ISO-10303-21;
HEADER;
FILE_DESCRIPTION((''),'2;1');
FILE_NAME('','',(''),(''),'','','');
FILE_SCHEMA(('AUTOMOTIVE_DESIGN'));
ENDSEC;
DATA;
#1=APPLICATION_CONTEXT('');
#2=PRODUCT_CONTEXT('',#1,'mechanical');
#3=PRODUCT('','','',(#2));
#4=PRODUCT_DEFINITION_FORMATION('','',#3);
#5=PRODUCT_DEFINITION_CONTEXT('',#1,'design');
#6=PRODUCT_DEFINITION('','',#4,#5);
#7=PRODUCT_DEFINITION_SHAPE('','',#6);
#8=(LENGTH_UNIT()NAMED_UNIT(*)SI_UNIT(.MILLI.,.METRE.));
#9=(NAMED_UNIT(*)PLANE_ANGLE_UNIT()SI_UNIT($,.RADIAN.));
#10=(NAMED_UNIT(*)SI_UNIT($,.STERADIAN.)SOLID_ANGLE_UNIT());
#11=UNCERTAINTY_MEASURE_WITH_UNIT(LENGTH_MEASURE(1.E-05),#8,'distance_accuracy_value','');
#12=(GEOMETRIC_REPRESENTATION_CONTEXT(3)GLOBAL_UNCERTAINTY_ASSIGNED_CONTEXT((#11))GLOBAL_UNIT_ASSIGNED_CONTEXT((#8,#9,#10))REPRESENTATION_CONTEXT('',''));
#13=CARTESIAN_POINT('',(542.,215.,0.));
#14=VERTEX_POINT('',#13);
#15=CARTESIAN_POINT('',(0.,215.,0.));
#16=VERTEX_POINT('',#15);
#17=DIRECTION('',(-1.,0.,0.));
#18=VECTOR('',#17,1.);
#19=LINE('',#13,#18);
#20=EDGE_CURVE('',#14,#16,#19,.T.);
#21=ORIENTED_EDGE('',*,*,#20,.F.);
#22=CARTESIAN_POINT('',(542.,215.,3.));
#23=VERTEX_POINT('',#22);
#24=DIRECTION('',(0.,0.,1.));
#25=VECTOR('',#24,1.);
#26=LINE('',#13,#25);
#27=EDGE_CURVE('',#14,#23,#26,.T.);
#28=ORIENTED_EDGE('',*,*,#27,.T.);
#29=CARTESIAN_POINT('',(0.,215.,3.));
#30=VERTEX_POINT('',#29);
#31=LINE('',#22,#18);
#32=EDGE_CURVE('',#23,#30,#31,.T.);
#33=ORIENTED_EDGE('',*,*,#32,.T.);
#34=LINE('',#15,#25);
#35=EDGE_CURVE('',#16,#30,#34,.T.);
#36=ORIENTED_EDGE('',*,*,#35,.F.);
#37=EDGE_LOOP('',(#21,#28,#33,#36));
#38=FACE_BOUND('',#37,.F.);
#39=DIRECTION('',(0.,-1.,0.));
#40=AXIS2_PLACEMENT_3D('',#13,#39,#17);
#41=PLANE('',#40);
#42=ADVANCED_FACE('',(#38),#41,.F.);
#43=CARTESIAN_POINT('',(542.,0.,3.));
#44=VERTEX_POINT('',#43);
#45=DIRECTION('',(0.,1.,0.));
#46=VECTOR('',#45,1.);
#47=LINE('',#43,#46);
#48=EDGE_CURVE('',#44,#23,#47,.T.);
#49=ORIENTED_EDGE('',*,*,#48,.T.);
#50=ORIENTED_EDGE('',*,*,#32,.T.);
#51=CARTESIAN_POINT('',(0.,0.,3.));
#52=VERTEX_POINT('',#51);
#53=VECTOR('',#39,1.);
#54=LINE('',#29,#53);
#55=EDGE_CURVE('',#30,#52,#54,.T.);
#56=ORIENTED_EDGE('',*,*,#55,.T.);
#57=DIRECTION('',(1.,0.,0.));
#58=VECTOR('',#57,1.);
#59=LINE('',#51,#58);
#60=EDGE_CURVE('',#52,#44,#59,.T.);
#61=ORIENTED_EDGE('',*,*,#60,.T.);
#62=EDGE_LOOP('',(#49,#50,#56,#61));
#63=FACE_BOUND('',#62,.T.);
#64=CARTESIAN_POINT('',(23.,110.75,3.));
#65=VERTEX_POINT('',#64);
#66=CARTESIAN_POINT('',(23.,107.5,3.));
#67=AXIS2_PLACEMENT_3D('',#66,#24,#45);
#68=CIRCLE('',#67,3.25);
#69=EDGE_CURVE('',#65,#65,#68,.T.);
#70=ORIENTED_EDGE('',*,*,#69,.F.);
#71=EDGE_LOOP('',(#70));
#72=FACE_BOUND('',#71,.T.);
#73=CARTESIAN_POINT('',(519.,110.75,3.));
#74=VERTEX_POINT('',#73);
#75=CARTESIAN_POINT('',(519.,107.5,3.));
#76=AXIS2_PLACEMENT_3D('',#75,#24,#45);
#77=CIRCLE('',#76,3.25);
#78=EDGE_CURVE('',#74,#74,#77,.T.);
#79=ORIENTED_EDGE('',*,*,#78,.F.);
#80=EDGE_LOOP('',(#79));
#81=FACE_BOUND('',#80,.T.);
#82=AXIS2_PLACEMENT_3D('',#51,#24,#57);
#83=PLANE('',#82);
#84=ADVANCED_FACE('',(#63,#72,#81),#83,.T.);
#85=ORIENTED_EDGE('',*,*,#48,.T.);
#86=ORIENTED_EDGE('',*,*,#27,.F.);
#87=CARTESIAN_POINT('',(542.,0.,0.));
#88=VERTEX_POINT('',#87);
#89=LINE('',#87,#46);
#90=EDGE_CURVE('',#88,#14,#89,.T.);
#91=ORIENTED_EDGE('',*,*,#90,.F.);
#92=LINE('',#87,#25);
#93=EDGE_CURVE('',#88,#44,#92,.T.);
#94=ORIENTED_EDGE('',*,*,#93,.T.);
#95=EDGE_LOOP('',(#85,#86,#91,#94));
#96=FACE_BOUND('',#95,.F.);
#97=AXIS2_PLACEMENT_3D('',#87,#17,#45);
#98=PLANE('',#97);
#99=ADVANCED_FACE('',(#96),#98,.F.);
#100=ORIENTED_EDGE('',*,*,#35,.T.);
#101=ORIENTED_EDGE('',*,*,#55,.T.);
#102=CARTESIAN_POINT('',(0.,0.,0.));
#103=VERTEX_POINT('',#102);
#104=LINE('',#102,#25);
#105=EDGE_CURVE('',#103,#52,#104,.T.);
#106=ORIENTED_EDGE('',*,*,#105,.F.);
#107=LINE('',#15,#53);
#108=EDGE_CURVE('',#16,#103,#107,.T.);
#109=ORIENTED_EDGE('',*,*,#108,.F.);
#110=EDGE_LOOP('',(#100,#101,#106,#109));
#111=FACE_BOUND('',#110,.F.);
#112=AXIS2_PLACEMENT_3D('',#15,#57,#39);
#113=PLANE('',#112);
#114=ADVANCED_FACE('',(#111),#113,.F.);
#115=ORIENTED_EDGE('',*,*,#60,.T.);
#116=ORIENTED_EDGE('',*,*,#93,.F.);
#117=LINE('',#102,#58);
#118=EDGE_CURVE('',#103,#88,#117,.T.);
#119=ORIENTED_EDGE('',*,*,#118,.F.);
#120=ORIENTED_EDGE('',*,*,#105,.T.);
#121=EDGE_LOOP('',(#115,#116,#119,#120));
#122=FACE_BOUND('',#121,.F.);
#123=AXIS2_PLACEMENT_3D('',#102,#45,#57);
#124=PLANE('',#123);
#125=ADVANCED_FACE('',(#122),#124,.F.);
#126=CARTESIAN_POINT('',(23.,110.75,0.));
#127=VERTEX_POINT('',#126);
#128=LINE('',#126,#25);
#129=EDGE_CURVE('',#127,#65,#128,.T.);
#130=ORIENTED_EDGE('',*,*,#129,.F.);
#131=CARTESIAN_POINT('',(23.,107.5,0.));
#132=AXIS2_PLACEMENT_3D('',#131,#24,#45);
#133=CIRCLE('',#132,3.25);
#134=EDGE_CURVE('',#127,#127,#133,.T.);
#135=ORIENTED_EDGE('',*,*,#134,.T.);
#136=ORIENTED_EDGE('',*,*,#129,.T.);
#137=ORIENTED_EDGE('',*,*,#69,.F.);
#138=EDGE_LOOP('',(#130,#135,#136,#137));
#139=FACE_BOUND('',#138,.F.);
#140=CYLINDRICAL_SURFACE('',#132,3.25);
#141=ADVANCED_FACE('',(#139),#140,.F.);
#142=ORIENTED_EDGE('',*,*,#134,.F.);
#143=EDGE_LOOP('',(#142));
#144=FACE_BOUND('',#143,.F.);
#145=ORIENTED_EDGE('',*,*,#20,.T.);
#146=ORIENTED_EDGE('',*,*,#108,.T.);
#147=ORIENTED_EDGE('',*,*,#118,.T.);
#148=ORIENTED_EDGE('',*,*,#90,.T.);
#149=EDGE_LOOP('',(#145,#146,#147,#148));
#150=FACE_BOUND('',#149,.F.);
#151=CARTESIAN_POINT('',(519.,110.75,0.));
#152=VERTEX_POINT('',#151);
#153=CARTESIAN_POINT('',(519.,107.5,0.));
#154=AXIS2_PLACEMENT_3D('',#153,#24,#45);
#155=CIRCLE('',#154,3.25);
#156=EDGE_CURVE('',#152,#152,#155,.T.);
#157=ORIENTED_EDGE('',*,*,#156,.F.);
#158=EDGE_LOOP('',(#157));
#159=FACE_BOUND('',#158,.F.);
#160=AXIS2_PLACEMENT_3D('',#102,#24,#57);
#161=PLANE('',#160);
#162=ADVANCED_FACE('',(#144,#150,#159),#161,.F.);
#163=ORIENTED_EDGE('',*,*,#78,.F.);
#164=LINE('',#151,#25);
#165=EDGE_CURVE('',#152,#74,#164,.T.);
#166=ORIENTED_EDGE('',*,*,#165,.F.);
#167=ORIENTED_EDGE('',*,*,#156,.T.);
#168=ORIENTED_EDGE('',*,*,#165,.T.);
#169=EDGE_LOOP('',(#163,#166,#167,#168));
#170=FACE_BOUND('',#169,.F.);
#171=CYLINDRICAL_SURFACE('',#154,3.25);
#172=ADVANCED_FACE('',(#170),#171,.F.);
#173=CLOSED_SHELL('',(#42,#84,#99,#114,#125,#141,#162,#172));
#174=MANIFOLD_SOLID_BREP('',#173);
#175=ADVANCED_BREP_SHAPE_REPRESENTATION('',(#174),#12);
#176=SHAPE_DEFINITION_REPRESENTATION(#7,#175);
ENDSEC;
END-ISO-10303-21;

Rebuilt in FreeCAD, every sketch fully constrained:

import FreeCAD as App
import Part
import Sketcher
Q = App.Units.Quantity


def add_polygon(sketch, points):
    """Adds a closed chain of lines whose ends are joined by coincident constraints."""
    first, n = sketch.GeometryCount, len(points)
    for a, b in zip(points, points[1:] + points[:1]):
        sketch.addGeometry(Part.LineSegment(App.Vector(*a, 0), App.Vector(*b, 0)), False)
    for i in range(n):
        sketch.addConstraint(Sketcher.Constraint("Coincident", first + i, 2, first + (i + 1) % n, 1))

doc = App.newDocument("Part")
body = doc.addObject("PartDesign::Body", "Body")

sketch1 = body.newObject("Sketcher::SketchObject", "Sketch")
sketch1.AttachmentSupport = (doc.getObject("XY_Plane"), [""])
sketch1.MapMode = "FlatFace"
add_polygon(sketch1, [(0, 215), (0, 0), (542, 0), (542, 215)])
sketch1.addConstraint(Sketcher.Constraint("Vertical", 0))
sketch1.addConstraint(Sketcher.Constraint("Horizontal", 1))
sketch1.addConstraint(Sketcher.Constraint("Vertical", 2))
sketch1.addConstraint(Sketcher.Constraint("Horizontal", 3))
sketch1.addConstraint(Sketcher.Constraint("Coincident", 0, 2, -1, 1))
sketch1.addConstraint(Sketcher.Constraint("DistanceX", 1, 1, 1, 2, Q("542 mm")))
sketch1.addConstraint(Sketcher.Constraint("DistanceY", 0, 2, 0, 1, Q("215 mm")))
pad1 = body.newObject("PartDesign::Pad", "Pad")
pad1.Profile = sketch1
pad1.Length = 3

sketch2 = body.newObject("Sketcher::SketchObject", "Sketch001")
sketch2.AttachmentSupport = (doc.getObject("XY_Plane"), [""])
sketch2.MapMode = "FlatFace"
sketch2.addGeometry(Part.Circle(App.Vector(23, 107.5, 0), App.Vector(0, 0, 1), 3.2), False)
sketch2.addGeometry(Part.Circle(App.Vector(519, 107.5, 0), App.Vector(0, 0, 1), 3.2), False)
sketch2.addConstraint(Sketcher.Constraint("Equal", 0, 1))
sketch2.addConstraint(Sketcher.Constraint("Horizontal", 0, 3, 1, 3))
sketch2.addConstraint(Sketcher.Constraint("Diameter", 0, Q("6.5 mm")))
sketch2.addConstraint(Sketcher.Constraint("DistanceX", -1, 1, 0, 3, Q("23 mm")))
sketch2.addConstraint(Sketcher.Constraint("DistanceX", -1, 1, 1, 3, Q("519 mm")))
sketch2.addConstraint(Sketcher.Constraint("DistanceY", -1, 1, 0, 3, Q("107.5 mm")))
doc.recompute()
hole = body.newObject("PartDesign::Hole", "Hole")
hole.Profile = sketch2
hole.ThreadType = "None"
hole.Diameter = 6.5
hole.DepthType = "ThroughAll"
hole.Reversed = True

doc.recompute()
